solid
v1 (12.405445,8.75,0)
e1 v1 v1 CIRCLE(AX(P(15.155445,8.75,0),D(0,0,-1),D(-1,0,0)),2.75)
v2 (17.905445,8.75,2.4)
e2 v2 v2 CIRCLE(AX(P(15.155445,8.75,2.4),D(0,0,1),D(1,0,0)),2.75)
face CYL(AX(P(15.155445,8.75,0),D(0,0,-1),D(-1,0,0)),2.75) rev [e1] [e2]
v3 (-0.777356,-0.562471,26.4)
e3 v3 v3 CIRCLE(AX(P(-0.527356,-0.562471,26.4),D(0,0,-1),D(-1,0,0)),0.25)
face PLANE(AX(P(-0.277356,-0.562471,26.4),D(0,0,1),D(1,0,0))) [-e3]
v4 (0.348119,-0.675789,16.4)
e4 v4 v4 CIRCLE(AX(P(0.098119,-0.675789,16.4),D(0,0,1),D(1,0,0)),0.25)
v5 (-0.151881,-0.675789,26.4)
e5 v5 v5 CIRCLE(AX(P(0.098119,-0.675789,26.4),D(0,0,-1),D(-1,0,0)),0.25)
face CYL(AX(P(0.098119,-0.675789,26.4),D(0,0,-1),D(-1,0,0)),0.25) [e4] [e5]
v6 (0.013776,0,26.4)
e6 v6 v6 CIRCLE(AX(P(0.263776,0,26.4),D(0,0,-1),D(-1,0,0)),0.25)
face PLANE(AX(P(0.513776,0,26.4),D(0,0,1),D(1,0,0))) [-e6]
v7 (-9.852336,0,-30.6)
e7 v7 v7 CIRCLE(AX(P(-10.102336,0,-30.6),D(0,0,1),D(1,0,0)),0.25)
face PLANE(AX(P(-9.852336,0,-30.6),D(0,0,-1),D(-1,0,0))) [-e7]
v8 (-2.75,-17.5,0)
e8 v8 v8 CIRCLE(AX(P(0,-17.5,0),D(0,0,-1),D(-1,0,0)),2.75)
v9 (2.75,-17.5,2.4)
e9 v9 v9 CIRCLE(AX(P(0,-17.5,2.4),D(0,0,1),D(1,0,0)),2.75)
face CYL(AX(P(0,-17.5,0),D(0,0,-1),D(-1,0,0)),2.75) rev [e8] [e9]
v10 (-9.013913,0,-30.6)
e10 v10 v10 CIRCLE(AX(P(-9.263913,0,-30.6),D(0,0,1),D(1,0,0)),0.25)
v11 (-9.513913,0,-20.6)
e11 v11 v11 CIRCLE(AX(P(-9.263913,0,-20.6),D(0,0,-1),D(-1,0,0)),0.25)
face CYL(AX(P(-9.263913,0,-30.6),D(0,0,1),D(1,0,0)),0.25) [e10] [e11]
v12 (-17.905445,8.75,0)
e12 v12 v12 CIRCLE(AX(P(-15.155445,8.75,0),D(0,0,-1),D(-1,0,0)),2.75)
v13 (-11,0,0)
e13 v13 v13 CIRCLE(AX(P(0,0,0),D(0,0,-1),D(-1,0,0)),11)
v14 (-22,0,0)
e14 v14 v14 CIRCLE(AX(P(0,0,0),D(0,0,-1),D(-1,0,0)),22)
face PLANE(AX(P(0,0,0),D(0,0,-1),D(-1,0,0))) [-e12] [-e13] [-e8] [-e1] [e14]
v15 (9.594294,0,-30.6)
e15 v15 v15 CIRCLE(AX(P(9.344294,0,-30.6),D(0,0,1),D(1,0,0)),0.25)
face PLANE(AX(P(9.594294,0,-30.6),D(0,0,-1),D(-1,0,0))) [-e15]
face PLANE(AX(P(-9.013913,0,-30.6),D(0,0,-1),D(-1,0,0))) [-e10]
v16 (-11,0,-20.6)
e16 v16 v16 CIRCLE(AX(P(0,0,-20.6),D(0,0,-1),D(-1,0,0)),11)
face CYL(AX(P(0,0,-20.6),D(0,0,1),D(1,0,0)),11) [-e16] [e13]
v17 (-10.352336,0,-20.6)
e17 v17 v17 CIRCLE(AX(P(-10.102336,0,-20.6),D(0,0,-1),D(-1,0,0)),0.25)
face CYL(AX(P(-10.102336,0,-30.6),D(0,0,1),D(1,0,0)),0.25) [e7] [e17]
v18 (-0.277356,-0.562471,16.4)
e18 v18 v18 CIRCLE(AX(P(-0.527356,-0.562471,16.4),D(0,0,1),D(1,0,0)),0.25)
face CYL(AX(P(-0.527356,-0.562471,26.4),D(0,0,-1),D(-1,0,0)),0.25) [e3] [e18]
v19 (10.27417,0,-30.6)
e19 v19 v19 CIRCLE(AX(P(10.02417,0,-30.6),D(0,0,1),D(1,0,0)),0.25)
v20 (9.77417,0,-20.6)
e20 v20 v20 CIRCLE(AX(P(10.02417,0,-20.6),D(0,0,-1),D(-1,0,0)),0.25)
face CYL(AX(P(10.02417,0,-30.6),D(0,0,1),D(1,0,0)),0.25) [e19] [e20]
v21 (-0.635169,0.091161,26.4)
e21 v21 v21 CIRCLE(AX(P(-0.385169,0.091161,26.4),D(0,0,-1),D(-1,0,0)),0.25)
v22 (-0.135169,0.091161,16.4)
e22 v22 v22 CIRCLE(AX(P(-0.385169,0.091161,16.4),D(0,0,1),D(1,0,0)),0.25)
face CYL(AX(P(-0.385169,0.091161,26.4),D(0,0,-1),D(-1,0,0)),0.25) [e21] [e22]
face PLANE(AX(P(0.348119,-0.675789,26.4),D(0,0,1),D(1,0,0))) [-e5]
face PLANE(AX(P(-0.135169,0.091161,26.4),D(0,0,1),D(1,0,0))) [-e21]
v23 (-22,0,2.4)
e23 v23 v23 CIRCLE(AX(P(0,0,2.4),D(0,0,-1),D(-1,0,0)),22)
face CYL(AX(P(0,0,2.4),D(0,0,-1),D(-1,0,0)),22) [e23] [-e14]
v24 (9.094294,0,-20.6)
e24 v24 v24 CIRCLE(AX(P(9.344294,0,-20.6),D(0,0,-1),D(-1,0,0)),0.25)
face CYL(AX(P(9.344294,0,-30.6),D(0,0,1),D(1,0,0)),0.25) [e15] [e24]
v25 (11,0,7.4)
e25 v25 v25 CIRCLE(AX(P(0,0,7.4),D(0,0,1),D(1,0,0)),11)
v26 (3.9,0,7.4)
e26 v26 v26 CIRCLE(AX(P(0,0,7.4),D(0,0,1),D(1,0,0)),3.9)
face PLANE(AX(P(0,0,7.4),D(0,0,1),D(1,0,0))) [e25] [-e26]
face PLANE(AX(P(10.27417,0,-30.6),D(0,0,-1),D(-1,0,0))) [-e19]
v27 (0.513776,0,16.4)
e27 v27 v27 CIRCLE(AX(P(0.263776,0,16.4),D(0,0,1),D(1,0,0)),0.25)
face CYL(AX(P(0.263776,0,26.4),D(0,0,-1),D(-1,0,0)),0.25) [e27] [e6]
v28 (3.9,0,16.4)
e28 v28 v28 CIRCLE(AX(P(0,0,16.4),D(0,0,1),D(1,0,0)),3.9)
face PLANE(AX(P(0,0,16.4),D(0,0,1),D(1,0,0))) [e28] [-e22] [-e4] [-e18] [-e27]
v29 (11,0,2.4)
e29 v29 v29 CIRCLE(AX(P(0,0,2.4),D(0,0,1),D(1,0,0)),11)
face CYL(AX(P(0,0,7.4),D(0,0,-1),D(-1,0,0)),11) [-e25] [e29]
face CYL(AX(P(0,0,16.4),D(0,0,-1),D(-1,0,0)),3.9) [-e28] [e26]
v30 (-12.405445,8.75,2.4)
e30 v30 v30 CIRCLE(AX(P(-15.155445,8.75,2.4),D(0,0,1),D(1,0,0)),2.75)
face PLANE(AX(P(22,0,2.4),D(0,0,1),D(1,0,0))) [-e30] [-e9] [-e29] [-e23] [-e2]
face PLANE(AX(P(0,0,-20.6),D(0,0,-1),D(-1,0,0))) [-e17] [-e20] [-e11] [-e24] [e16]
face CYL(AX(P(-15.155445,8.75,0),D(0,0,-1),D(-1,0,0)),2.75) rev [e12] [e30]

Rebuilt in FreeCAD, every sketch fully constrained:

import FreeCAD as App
import Part
import Sketcher
from FreeCAD import Vector
Q = App.Units.Quantity


def add_polygon(sketch, points):
    """Adds a closed chain of lines whose ends are joined by coincident constraints."""
    first, n = sketch.GeometryCount, len(points)
    for a, b in zip(points, points[1:] + points[:1]):
        sketch.addGeometry(Part.LineSegment(App.Vector(*a, 0), App.Vector(*b, 0)), False)
    for i in range(n):
        sketch.addConstraint(Sketcher.Constraint("Coincident", first + i, 2, first + (i + 1) % n, 1))

doc = App.newDocument("Part")
body = doc.addObject("PartDesign::Body", "Body")

sketch1 = body.newObject("Sketcher::SketchObject", "Sketch")
sketch1.AttachmentSupport = (doc.getObject("XZ_Plane"), [""])
sketch1.MapMode = "FlatFace"
add_polygon(sketch1, [(0, 2.4), (0, 0), (22, 0), (22, 2.4)])
sketch1.addConstraint([
    Sketcher.Constraint("Vertical", 0),
    Sketcher.Constraint("Horizontal", 1),
    Sketcher.Constraint("Vertical", 2),
    Sketcher.Constraint("Horizontal", 3),
    Sketcher.Constraint("Coincident", 0, 2, -1, 1),
    Sketcher.Constraint("DistanceX", 1, 1, 1, 2, Q("22 mm")),
    Sketcher.Constraint("DistanceY", 0, 2, 0, 1, Q("2.4 mm")),
])
revolution = body.newObject("PartDesign::Revolution", "Revolution")
revolution.Profile = sketch1
revolution.ReferenceAxis = (sketch1, ["V_Axis"])
revolution.Angle = 360

sketch2 = body.newObject("Sketcher::SketchObject", "Sketch001")
sketch2.AttachmentSupport = (doc.getObject("XY_Plane"), [""])
sketch2.MapMode = "FlatFace"
sketch2.AttachmentOffset = App.Placement(Vector(0, 0, 2.4), App.Rotation())
sketch2.addGeometry(Part.Circle(Vector(0, 0, 0), Vector(0, 0, 1), 11), False)
sketch2.addConstraint([
    Sketcher.Constraint("Coincident", 0, 3, -1, 1),
    Sketcher.Constraint("Diameter", 0, Q("22 mm")),
])
pad1 = body.newObject("PartDesign::Pad", "Pad")
pad1.Profile = sketch2
pad1.Length = 5

sketch3 = body.newObject("Sketcher::SketchObject", "Sketch002")
sketch3.AttachmentSupport = (doc.getObject("XY_Plane"), [""])
sketch3.MapMode = "FlatFace"
sketch3.AttachmentOffset = App.Placement(Vector(0, 0, 7.4), App.Rotation())
sketch3.addGeometry(Part.Circle(Vector(0, 0, 0), Vector(0, 0, 1), 3.9), False)
sketch3.addConstraint([
    Sketcher.Constraint("Coincident", 0, 3, -1, 1),
    Sketcher.Constraint("Diameter", 0, Q("7.8 mm")),
])
pad2 = body.newObject("PartDesign::Pad", "Pad001")
pad2.Profile = sketch3
pad2.Length = 9

sketch4 = body.newObject("Sketcher::SketchObject", "Sketch003")
sketch4.AttachmentSupport = (doc.getObject("XY_Plane"), [""])
sketch4.MapMode = "FlatFace"
sketch4.addGeometry(Part.Circle(Vector(0, 0, 0), Vector(0, 0, 1), 11), False)
sketch4.addConstraint([
    Sketcher.Constraint("Coincident", 0, 3, -1, 1),
    Sketcher.Constraint("Diameter", 0, Q("22 mm")),
])
pad3 = body.newObject("PartDesign::Pad", "Pad002")
pad3.Profile = sketch4
pad3.Length = 20.6
pad3.Reversed = True

sketch5 = body.newObject("Sketcher::SketchObject", "Sketch004")
sketch5.AttachmentSupport = (doc.getObject("XZ_Plane"), [""])
sketch5.MapMode = "FlatFace"
sketch5.AttachmentOffset = App.Placement(Vector(0, 0, 0.675789), App.Rotation())
add_polygon(sketch5, [(0.1, 26.4), (0.1, 16.4), (0.35, 16.4), (0.35, 26.4)])
sketch5.addGeometry(Part.LineSegment(Vector(0.1, 26.4, 0), Vector(0.1, 16.4, 0)), True)
sketch5.addConstraint([
    Sketcher.Constraint("Vertical", 0),
    Sketcher.Constraint("Horizontal", 1),
    Sketcher.Constraint("Vertical", 2),
    Sketcher.Constraint("Horizontal", 3),
    Sketcher.Constraint("Vertical", 4),
    Sketcher.Constraint("Coincident", 4, 1, 3, 2),
    Sketcher.Constraint("Horizontal", 1, 2, 4, 2),
    Sketcher.Constraint("DistanceY", 0, 2, 0, 1, Q("10 mm")),
    Sketcher.Constraint("DistanceX", 1, 1, 1, 2, Q("0.25 mm")),
    Sketcher.Constraint("DistanceY", -1, 1, 0, 2, Q("16.4 mm")),
    Sketcher.Constraint("DistanceX", -1, 1, 0, 2, Q("0.098119 mm")),
])
revolution2 = body.newObject("PartDesign::Revolution", "Revolution001")
revolution2.Profile = sketch5
revolution2.ReferenceAxis = (sketch5, ["Axis0"])
revolution2.Angle = 360

sketch6 = body.newObject("Sketcher::SketchObject", "Sketch005")
sketch6.AttachmentSupport = (doc.getObject("XZ_Plane"), [""])
sketch6.MapMode = "FlatFace"
sketch6.AttachmentOffset = App.Placement(Vector(0, 0, -0.091161), App.Rotation())
add_polygon(sketch6, [(-0.39, 26.4), (-0.39, 16.4), (-0.14, 16.4), (-0.14, 26.4)])
sketch6.addGeometry(Part.LineSegment(Vector(-0.39, 26.4, 0), Vector(-0.39, 16.4, 0)), True)
sketch6.addConstraint([
    Sketcher.Constraint("Vertical", 0),
    Sketcher.Constraint("Horizontal", 1),
    Sketcher.Constraint("Vertical", 2),
    Sketcher.Constraint("Horizontal", 3),
    Sketcher.Constraint("Vertical", 4),
    Sketcher.Constraint("Coincident", 4, 1, 3, 2),
    Sketcher.Constraint("Horizontal", 1, 2, 4, 2),
    Sketcher.Constraint("DistanceY", 0, 2, 0, 1, Q("10 mm")),
    Sketcher.Constraint("DistanceX", 1, 1, 1, 2, Q("0.25 mm")),
    Sketcher.Constraint("DistanceY", -1, 1, 0, 2, Q("16.4 mm")),
    Sketcher.Constraint("DistanceX", 0, 2, -1, 1, Q("0.385169 mm")),
])
revolution3 = body.newObject("PartDesign::Revolution", "Revolution002")
revolution3.Profile = sketch6
revolution3.ReferenceAxis = (sketch6, ["Axis0"])
revolution3.Angle = 360

sketch7 = body.newObject("Sketcher::SketchObject", "Sketch006")
sketch7.AttachmentSupport = (doc.getObject("XZ_Plane"), [""])
sketch7.MapMode = "FlatFace"
sketch7.AttachmentOffset = App.Placement(Vector(0, 0, 0.562471), App.Rotation())
add_polygon(sketch7, [(-0.53, 26.4), (-0.53, 16.4), (-0.28, 16.4), (-0.28, 26.4)])
sketch7.addGeometry(Part.LineSegment(Vector(-0.53, 26.4, 0), Vector(-0.53, 16.4, 0)), True)
sketch7.addConstraint([
    Sketcher.Constraint("Vertical", 0),
    Sketcher.Constraint("Horizontal", 1),
    Sketcher.Constraint("Vertical", 2),
    Sketcher.Constraint("Horizontal", 3),
    Sketcher.Constraint("Vertical", 4),
    Sketcher.Constraint("Coincident", 4, 1, 3, 2),
    Sketcher.Constraint("Horizontal", 1, 2, 4, 2),
    Sketcher.Constraint("DistanceY", 0, 2, 0, 1, Q("10 mm")),
    Sketcher.Constraint("DistanceX", 1, 1, 1, 2, Q("0.25 mm")),
    Sketcher.Constraint("DistanceY", -1, 1, 0, 2, Q("16.4 mm")),
    Sketcher.Constraint("DistanceX", 0, 2, -1, 1, Q("0.527356 mm")),
])
revolution4 = body.newObject("PartDesign::Revolution", "Revolution003")
revolution4.Profile = sketch7
revolution4.ReferenceAxis = (sketch7, ["Axis0"])
revolution4.Angle = 360

sketch8 = body.newObject("Sketcher::SketchObject", "Sketch007")
sketch8.AttachmentSupport = (doc.getObject("XZ_Plane"), [""])
sketch8.MapMode = "FlatFace"
add_polygon(sketch8, [(-9.26, -30.6), (-9.26, -20.6), (-9.01, -20.6), (-9.01, -30.6)])
sketch8.addGeometry(Part.LineSegment(Vector(-9.26, -30.6, 0), Vector(-9.26, -20.6, 0)), True)
sketch8.addConstraint([
    Sketcher.Constraint("Vertical", 0),
    Sketcher.Constraint("Horizontal", 1),
    Sketcher.Constraint("Vertical", 2),
    Sketcher.Constraint("Horizontal", 3),
    Sketcher.Constraint("Vertical", 4),
    Sketcher.Constraint("Coincident", 4, 1, 3, 2),
    Sketcher.Constraint("Horizontal", 1, 2, 4, 2),
    Sketcher.Constraint("DistanceY", 0, 1, 0, 2, Q("10 mm")),
    Sketcher.Constraint("DistanceX", 1, 1, 1, 2, Q("0.25 mm")),
    Sketcher.Constraint("DistanceY", 0, 2, -1, 1, Q("20.6 mm")),
    Sketcher.Constraint("DistanceX", 0, 2, -1, 1, Q("9.263913 mm")),
])
revolution5 = body.newObject("PartDesign::Revolution", "Revolution004")
revolution5.Profile = sketch8
revolution5.ReferenceAxis = (sketch8, ["Axis0"])
revolution5.Angle = 360

sketch9 = body.newObject("Sketcher::SketchObject", "Sketch008")
sketch9.AttachmentSupport = (doc.getObject("XZ_Plane"), [""])
sketch9.MapMode = "FlatFace"
add_polygon(sketch9, [(10.02, -30.6), (10.02, -20.6), (10.27, -20.6), (10.27, -30.6)])
sketch9.addGeometry(Part.LineSegment(Vector(10.02, -30.6, 0), Vector(10.02, -20.6, 0)), True)
sketch9.addConstraint([
    Sketcher.Constraint("Vertical", 0),
    Sketcher.Constraint("Horizontal", 1),
    Sketcher.Constraint("Vertical", 2),
    Sketcher.Constraint("Horizontal", 3),
    Sketcher.Constraint("Vertical", 4),
    Sketcher.Constraint("Coincident", 4, 1, 3, 2),
    Sketcher.Constraint("Horizontal", 1, 2, 4, 2),
    Sketcher.Constraint("DistanceY", 0, 1, 0, 2, Q("10 mm")),
    Sketcher.Constraint("DistanceX", 1, 1, 1, 2, Q("0.25 mm")),
    Sketcher.Constraint("DistanceY", 0, 2, -1, 1, Q("20.6 mm")),
    Sketcher.Constraint("DistanceX", -1, 1, 0, 2, Q("10.02417 mm")),
])
revolution6 = body.newObject("PartDesign::Revolution", "Revolution005")
revolution6.Profile = sketch9
revolution6.ReferenceAxis = (sketch9, ["Axis0"])
revolution6.Angle = 360

sketch10 = body.newObject("Sketcher::SketchObject", "Sketch009")
sketch10.AttachmentSupport = (doc.getObject("XZ_Plane"), [""])
sketch10.MapMode = "FlatFace"
add_polygon(sketch10, [(9.34, -30.6), (9.34, -20.6), (9.59, -20.6), (9.59, -30.6)])
sketch10.addGeometry(Part.LineSegment(Vector(9.34, -30.6, 0), Vector(9.34, -20.6, 0)), True)
sketch10.addConstraint([
    Sketcher.Constraint("Vertical", 0),
    Sketcher.Constraint("Horizontal", 1),
    Sketcher.Constraint("Vertical", 2),
    Sketcher.Constraint("Horizontal", 3),
    Sketcher.Constraint("Vertical", 4),
    Sketcher.Constraint("Coincident", 4, 1, 3, 2),
    Sketcher.Constraint("Horizontal", 1, 2, 4, 2),
    Sketcher.Constraint("DistanceY", 0, 1, 0, 2, Q("10 mm")),
    Sketcher.Constraint("DistanceX", 1, 1, 1, 2, Q("0.25 mm")),
    Sketcher.Constraint("DistanceY", 0, 2, -1, 1, Q("20.6 mm")),
    Sketcher.Constraint("DistanceX", -1, 1, 0, 2, Q("9.344294 mm")),
])
revolution7 = body.newObject("PartDesign::Revolution", "Revolution006")
revolution7.Profile = sketch10
revolution7.ReferenceAxis = (sketch10, ["Axis0"])
revolution7.Angle = 360

sketch11 = body.newObject("Sketcher::SketchObject", "Sketch010")
sketch11.AttachmentSupport = (doc.getObject("XZ_Plane"), [""])
sketch11.MapMode = "FlatFace"
add_polygon(sketch11, [(-10.1, -30.6), (-10.1, -20.6), (-9.85, -20.6), (-9.85, -30.6)])
sketch11.addGeometry(Part.LineSegment(Vector(-10.1, -30.6, 0), Vector(-10.1, -20.6, 0)), True)
sketch11.addConstraint([
    Sketcher.Constraint("Vertical", 0),
    Sketcher.Constraint("Horizontal", 1),
    Sketcher.Constraint("Vertical", 2),
    Sketcher.Constraint("Horizontal", 3),
    Sketcher.Constraint("Vertical", 4),
    Sketcher.Constraint("Coincident", 4, 1, 3, 2),
    Sketcher.Constraint("Horizontal", 1, 2, 4, 2),
    Sketcher.Constraint("DistanceY", 0, 1, 0, 2, Q("10 mm")),
    Sketcher.Constraint("DistanceX", 1, 1, 1, 2, Q("0.25 mm")),
    Sketcher.Constraint("DistanceY", 0, 2, -1, 1, Q("20.6 mm")),
    Sketcher.Constraint("DistanceX", 0, 2, -1, 1, Q("10.102336 mm")),
])
revolution8 = body.newObject("PartDesign::Revolution", "Revolution007")
revolution8.Profile = sketch11
revolution8.ReferenceAxis = (sketch11, ["Axis0"])
revolution8.Angle = 360

sketch12 = body.newObject("Sketcher::SketchObject", "Sketch011")
sketch12.AttachmentSupport = (doc.getObject("XZ_Plane"), [""])
sketch12.MapMode = "FlatFace"
add_polygon(sketch12, [(0.26, 26.4), (0.26, 16.4), (0.51, 16.4), (0.51, 26.4)])
sketch12.addGeometry(Part.LineSegment(Vector(0.26, 26.4, 0), Vector(0.26, 16.4, 0)), True)
sketch12.addConstraint([
    Sketcher.Constraint("Vertical", 0),
    Sketcher.Constraint("Horizontal", 1),
    Sketcher.Constraint("Vertical", 2),
    Sketcher.Constraint("Horizontal", 3),
    Sketcher.Constraint("Vertical", 4),
    Sketcher.Constraint("Coincident", 4, 1, 3, 2),
    Sketcher.Constraint("Horizontal", 1, 2, 4, 2),
    Sketcher.Constraint("DistanceY", 0, 2, 0, 1, Q("10 mm")),
    Sketcher.Constraint("DistanceX", 1, 1, 1, 2, Q("0.25 mm")),
    Sketcher.Constraint("DistanceY", -1, 1, 0, 2, Q("16.4 mm")),
    Sketcher.Constraint("DistanceX", -1, 1, 0, 2, Q("0.263776 mm")),
])
revolution9 = body.newObject("PartDesign::Revolution", "Revolution008")
revolution9.Profile = sketch12
revolution9.ReferenceAxis = (sketch12, ["Axis0"])
revolution9.Angle = 360

sketch13 = body.newObject("Sketcher::SketchObject", "Sketch012")
sketch13.AttachmentSupport = (doc.getObject("XY_Plane"), [""])
sketch13.MapMode = "FlatFace"
sketch13.addGeometry([
    Part.Circle(Vector(15.2, 8.8, 0), Vector(0, 0, 1), 2.8),
    Part.Circle(Vector(-15.2, 8.8, 0), Vector(0, 0, 1), 2.8),
    Part.Circle(Vector(0, -17.5, 0), Vector(0, 0, 1), 2.8),
], False)
sketch13.addConstraint([
    Sketcher.Constraint("Equal", 0, 1),
    Sketcher.Constraint("Equal", 1, 2),
    Sketcher.Constraint("Symmetric", 0, 3, 1, 3, -2),
    Sketcher.Constraint("PointOnObject", 2, 3, -2),
    Sketcher.Constraint("Diameter", 0, Q("5.5 mm")),
    Sketcher.Constraint("DistanceY", 2, 3, -1, 1, Q("17.5 mm")),
    Sketcher.Constraint("DistanceY", -1, 1, 0, 3, Q("8.75 mm")),
    Sketcher.Constraint("DistanceX", 1, 3, 0, 3, Q("30.310889 mm")),
])
doc.recompute()
hole = body.newObject("PartDesign::Hole", "Hole")
hole.Profile = sketch13
hole.ThreadType = "None"
hole.Diameter = 5.5
hole.DepthType = "Dimension"
hole.Depth = 26.4
hole.DrillPoint = "Flat"
hole.Reversed = True

doc.recompute()
